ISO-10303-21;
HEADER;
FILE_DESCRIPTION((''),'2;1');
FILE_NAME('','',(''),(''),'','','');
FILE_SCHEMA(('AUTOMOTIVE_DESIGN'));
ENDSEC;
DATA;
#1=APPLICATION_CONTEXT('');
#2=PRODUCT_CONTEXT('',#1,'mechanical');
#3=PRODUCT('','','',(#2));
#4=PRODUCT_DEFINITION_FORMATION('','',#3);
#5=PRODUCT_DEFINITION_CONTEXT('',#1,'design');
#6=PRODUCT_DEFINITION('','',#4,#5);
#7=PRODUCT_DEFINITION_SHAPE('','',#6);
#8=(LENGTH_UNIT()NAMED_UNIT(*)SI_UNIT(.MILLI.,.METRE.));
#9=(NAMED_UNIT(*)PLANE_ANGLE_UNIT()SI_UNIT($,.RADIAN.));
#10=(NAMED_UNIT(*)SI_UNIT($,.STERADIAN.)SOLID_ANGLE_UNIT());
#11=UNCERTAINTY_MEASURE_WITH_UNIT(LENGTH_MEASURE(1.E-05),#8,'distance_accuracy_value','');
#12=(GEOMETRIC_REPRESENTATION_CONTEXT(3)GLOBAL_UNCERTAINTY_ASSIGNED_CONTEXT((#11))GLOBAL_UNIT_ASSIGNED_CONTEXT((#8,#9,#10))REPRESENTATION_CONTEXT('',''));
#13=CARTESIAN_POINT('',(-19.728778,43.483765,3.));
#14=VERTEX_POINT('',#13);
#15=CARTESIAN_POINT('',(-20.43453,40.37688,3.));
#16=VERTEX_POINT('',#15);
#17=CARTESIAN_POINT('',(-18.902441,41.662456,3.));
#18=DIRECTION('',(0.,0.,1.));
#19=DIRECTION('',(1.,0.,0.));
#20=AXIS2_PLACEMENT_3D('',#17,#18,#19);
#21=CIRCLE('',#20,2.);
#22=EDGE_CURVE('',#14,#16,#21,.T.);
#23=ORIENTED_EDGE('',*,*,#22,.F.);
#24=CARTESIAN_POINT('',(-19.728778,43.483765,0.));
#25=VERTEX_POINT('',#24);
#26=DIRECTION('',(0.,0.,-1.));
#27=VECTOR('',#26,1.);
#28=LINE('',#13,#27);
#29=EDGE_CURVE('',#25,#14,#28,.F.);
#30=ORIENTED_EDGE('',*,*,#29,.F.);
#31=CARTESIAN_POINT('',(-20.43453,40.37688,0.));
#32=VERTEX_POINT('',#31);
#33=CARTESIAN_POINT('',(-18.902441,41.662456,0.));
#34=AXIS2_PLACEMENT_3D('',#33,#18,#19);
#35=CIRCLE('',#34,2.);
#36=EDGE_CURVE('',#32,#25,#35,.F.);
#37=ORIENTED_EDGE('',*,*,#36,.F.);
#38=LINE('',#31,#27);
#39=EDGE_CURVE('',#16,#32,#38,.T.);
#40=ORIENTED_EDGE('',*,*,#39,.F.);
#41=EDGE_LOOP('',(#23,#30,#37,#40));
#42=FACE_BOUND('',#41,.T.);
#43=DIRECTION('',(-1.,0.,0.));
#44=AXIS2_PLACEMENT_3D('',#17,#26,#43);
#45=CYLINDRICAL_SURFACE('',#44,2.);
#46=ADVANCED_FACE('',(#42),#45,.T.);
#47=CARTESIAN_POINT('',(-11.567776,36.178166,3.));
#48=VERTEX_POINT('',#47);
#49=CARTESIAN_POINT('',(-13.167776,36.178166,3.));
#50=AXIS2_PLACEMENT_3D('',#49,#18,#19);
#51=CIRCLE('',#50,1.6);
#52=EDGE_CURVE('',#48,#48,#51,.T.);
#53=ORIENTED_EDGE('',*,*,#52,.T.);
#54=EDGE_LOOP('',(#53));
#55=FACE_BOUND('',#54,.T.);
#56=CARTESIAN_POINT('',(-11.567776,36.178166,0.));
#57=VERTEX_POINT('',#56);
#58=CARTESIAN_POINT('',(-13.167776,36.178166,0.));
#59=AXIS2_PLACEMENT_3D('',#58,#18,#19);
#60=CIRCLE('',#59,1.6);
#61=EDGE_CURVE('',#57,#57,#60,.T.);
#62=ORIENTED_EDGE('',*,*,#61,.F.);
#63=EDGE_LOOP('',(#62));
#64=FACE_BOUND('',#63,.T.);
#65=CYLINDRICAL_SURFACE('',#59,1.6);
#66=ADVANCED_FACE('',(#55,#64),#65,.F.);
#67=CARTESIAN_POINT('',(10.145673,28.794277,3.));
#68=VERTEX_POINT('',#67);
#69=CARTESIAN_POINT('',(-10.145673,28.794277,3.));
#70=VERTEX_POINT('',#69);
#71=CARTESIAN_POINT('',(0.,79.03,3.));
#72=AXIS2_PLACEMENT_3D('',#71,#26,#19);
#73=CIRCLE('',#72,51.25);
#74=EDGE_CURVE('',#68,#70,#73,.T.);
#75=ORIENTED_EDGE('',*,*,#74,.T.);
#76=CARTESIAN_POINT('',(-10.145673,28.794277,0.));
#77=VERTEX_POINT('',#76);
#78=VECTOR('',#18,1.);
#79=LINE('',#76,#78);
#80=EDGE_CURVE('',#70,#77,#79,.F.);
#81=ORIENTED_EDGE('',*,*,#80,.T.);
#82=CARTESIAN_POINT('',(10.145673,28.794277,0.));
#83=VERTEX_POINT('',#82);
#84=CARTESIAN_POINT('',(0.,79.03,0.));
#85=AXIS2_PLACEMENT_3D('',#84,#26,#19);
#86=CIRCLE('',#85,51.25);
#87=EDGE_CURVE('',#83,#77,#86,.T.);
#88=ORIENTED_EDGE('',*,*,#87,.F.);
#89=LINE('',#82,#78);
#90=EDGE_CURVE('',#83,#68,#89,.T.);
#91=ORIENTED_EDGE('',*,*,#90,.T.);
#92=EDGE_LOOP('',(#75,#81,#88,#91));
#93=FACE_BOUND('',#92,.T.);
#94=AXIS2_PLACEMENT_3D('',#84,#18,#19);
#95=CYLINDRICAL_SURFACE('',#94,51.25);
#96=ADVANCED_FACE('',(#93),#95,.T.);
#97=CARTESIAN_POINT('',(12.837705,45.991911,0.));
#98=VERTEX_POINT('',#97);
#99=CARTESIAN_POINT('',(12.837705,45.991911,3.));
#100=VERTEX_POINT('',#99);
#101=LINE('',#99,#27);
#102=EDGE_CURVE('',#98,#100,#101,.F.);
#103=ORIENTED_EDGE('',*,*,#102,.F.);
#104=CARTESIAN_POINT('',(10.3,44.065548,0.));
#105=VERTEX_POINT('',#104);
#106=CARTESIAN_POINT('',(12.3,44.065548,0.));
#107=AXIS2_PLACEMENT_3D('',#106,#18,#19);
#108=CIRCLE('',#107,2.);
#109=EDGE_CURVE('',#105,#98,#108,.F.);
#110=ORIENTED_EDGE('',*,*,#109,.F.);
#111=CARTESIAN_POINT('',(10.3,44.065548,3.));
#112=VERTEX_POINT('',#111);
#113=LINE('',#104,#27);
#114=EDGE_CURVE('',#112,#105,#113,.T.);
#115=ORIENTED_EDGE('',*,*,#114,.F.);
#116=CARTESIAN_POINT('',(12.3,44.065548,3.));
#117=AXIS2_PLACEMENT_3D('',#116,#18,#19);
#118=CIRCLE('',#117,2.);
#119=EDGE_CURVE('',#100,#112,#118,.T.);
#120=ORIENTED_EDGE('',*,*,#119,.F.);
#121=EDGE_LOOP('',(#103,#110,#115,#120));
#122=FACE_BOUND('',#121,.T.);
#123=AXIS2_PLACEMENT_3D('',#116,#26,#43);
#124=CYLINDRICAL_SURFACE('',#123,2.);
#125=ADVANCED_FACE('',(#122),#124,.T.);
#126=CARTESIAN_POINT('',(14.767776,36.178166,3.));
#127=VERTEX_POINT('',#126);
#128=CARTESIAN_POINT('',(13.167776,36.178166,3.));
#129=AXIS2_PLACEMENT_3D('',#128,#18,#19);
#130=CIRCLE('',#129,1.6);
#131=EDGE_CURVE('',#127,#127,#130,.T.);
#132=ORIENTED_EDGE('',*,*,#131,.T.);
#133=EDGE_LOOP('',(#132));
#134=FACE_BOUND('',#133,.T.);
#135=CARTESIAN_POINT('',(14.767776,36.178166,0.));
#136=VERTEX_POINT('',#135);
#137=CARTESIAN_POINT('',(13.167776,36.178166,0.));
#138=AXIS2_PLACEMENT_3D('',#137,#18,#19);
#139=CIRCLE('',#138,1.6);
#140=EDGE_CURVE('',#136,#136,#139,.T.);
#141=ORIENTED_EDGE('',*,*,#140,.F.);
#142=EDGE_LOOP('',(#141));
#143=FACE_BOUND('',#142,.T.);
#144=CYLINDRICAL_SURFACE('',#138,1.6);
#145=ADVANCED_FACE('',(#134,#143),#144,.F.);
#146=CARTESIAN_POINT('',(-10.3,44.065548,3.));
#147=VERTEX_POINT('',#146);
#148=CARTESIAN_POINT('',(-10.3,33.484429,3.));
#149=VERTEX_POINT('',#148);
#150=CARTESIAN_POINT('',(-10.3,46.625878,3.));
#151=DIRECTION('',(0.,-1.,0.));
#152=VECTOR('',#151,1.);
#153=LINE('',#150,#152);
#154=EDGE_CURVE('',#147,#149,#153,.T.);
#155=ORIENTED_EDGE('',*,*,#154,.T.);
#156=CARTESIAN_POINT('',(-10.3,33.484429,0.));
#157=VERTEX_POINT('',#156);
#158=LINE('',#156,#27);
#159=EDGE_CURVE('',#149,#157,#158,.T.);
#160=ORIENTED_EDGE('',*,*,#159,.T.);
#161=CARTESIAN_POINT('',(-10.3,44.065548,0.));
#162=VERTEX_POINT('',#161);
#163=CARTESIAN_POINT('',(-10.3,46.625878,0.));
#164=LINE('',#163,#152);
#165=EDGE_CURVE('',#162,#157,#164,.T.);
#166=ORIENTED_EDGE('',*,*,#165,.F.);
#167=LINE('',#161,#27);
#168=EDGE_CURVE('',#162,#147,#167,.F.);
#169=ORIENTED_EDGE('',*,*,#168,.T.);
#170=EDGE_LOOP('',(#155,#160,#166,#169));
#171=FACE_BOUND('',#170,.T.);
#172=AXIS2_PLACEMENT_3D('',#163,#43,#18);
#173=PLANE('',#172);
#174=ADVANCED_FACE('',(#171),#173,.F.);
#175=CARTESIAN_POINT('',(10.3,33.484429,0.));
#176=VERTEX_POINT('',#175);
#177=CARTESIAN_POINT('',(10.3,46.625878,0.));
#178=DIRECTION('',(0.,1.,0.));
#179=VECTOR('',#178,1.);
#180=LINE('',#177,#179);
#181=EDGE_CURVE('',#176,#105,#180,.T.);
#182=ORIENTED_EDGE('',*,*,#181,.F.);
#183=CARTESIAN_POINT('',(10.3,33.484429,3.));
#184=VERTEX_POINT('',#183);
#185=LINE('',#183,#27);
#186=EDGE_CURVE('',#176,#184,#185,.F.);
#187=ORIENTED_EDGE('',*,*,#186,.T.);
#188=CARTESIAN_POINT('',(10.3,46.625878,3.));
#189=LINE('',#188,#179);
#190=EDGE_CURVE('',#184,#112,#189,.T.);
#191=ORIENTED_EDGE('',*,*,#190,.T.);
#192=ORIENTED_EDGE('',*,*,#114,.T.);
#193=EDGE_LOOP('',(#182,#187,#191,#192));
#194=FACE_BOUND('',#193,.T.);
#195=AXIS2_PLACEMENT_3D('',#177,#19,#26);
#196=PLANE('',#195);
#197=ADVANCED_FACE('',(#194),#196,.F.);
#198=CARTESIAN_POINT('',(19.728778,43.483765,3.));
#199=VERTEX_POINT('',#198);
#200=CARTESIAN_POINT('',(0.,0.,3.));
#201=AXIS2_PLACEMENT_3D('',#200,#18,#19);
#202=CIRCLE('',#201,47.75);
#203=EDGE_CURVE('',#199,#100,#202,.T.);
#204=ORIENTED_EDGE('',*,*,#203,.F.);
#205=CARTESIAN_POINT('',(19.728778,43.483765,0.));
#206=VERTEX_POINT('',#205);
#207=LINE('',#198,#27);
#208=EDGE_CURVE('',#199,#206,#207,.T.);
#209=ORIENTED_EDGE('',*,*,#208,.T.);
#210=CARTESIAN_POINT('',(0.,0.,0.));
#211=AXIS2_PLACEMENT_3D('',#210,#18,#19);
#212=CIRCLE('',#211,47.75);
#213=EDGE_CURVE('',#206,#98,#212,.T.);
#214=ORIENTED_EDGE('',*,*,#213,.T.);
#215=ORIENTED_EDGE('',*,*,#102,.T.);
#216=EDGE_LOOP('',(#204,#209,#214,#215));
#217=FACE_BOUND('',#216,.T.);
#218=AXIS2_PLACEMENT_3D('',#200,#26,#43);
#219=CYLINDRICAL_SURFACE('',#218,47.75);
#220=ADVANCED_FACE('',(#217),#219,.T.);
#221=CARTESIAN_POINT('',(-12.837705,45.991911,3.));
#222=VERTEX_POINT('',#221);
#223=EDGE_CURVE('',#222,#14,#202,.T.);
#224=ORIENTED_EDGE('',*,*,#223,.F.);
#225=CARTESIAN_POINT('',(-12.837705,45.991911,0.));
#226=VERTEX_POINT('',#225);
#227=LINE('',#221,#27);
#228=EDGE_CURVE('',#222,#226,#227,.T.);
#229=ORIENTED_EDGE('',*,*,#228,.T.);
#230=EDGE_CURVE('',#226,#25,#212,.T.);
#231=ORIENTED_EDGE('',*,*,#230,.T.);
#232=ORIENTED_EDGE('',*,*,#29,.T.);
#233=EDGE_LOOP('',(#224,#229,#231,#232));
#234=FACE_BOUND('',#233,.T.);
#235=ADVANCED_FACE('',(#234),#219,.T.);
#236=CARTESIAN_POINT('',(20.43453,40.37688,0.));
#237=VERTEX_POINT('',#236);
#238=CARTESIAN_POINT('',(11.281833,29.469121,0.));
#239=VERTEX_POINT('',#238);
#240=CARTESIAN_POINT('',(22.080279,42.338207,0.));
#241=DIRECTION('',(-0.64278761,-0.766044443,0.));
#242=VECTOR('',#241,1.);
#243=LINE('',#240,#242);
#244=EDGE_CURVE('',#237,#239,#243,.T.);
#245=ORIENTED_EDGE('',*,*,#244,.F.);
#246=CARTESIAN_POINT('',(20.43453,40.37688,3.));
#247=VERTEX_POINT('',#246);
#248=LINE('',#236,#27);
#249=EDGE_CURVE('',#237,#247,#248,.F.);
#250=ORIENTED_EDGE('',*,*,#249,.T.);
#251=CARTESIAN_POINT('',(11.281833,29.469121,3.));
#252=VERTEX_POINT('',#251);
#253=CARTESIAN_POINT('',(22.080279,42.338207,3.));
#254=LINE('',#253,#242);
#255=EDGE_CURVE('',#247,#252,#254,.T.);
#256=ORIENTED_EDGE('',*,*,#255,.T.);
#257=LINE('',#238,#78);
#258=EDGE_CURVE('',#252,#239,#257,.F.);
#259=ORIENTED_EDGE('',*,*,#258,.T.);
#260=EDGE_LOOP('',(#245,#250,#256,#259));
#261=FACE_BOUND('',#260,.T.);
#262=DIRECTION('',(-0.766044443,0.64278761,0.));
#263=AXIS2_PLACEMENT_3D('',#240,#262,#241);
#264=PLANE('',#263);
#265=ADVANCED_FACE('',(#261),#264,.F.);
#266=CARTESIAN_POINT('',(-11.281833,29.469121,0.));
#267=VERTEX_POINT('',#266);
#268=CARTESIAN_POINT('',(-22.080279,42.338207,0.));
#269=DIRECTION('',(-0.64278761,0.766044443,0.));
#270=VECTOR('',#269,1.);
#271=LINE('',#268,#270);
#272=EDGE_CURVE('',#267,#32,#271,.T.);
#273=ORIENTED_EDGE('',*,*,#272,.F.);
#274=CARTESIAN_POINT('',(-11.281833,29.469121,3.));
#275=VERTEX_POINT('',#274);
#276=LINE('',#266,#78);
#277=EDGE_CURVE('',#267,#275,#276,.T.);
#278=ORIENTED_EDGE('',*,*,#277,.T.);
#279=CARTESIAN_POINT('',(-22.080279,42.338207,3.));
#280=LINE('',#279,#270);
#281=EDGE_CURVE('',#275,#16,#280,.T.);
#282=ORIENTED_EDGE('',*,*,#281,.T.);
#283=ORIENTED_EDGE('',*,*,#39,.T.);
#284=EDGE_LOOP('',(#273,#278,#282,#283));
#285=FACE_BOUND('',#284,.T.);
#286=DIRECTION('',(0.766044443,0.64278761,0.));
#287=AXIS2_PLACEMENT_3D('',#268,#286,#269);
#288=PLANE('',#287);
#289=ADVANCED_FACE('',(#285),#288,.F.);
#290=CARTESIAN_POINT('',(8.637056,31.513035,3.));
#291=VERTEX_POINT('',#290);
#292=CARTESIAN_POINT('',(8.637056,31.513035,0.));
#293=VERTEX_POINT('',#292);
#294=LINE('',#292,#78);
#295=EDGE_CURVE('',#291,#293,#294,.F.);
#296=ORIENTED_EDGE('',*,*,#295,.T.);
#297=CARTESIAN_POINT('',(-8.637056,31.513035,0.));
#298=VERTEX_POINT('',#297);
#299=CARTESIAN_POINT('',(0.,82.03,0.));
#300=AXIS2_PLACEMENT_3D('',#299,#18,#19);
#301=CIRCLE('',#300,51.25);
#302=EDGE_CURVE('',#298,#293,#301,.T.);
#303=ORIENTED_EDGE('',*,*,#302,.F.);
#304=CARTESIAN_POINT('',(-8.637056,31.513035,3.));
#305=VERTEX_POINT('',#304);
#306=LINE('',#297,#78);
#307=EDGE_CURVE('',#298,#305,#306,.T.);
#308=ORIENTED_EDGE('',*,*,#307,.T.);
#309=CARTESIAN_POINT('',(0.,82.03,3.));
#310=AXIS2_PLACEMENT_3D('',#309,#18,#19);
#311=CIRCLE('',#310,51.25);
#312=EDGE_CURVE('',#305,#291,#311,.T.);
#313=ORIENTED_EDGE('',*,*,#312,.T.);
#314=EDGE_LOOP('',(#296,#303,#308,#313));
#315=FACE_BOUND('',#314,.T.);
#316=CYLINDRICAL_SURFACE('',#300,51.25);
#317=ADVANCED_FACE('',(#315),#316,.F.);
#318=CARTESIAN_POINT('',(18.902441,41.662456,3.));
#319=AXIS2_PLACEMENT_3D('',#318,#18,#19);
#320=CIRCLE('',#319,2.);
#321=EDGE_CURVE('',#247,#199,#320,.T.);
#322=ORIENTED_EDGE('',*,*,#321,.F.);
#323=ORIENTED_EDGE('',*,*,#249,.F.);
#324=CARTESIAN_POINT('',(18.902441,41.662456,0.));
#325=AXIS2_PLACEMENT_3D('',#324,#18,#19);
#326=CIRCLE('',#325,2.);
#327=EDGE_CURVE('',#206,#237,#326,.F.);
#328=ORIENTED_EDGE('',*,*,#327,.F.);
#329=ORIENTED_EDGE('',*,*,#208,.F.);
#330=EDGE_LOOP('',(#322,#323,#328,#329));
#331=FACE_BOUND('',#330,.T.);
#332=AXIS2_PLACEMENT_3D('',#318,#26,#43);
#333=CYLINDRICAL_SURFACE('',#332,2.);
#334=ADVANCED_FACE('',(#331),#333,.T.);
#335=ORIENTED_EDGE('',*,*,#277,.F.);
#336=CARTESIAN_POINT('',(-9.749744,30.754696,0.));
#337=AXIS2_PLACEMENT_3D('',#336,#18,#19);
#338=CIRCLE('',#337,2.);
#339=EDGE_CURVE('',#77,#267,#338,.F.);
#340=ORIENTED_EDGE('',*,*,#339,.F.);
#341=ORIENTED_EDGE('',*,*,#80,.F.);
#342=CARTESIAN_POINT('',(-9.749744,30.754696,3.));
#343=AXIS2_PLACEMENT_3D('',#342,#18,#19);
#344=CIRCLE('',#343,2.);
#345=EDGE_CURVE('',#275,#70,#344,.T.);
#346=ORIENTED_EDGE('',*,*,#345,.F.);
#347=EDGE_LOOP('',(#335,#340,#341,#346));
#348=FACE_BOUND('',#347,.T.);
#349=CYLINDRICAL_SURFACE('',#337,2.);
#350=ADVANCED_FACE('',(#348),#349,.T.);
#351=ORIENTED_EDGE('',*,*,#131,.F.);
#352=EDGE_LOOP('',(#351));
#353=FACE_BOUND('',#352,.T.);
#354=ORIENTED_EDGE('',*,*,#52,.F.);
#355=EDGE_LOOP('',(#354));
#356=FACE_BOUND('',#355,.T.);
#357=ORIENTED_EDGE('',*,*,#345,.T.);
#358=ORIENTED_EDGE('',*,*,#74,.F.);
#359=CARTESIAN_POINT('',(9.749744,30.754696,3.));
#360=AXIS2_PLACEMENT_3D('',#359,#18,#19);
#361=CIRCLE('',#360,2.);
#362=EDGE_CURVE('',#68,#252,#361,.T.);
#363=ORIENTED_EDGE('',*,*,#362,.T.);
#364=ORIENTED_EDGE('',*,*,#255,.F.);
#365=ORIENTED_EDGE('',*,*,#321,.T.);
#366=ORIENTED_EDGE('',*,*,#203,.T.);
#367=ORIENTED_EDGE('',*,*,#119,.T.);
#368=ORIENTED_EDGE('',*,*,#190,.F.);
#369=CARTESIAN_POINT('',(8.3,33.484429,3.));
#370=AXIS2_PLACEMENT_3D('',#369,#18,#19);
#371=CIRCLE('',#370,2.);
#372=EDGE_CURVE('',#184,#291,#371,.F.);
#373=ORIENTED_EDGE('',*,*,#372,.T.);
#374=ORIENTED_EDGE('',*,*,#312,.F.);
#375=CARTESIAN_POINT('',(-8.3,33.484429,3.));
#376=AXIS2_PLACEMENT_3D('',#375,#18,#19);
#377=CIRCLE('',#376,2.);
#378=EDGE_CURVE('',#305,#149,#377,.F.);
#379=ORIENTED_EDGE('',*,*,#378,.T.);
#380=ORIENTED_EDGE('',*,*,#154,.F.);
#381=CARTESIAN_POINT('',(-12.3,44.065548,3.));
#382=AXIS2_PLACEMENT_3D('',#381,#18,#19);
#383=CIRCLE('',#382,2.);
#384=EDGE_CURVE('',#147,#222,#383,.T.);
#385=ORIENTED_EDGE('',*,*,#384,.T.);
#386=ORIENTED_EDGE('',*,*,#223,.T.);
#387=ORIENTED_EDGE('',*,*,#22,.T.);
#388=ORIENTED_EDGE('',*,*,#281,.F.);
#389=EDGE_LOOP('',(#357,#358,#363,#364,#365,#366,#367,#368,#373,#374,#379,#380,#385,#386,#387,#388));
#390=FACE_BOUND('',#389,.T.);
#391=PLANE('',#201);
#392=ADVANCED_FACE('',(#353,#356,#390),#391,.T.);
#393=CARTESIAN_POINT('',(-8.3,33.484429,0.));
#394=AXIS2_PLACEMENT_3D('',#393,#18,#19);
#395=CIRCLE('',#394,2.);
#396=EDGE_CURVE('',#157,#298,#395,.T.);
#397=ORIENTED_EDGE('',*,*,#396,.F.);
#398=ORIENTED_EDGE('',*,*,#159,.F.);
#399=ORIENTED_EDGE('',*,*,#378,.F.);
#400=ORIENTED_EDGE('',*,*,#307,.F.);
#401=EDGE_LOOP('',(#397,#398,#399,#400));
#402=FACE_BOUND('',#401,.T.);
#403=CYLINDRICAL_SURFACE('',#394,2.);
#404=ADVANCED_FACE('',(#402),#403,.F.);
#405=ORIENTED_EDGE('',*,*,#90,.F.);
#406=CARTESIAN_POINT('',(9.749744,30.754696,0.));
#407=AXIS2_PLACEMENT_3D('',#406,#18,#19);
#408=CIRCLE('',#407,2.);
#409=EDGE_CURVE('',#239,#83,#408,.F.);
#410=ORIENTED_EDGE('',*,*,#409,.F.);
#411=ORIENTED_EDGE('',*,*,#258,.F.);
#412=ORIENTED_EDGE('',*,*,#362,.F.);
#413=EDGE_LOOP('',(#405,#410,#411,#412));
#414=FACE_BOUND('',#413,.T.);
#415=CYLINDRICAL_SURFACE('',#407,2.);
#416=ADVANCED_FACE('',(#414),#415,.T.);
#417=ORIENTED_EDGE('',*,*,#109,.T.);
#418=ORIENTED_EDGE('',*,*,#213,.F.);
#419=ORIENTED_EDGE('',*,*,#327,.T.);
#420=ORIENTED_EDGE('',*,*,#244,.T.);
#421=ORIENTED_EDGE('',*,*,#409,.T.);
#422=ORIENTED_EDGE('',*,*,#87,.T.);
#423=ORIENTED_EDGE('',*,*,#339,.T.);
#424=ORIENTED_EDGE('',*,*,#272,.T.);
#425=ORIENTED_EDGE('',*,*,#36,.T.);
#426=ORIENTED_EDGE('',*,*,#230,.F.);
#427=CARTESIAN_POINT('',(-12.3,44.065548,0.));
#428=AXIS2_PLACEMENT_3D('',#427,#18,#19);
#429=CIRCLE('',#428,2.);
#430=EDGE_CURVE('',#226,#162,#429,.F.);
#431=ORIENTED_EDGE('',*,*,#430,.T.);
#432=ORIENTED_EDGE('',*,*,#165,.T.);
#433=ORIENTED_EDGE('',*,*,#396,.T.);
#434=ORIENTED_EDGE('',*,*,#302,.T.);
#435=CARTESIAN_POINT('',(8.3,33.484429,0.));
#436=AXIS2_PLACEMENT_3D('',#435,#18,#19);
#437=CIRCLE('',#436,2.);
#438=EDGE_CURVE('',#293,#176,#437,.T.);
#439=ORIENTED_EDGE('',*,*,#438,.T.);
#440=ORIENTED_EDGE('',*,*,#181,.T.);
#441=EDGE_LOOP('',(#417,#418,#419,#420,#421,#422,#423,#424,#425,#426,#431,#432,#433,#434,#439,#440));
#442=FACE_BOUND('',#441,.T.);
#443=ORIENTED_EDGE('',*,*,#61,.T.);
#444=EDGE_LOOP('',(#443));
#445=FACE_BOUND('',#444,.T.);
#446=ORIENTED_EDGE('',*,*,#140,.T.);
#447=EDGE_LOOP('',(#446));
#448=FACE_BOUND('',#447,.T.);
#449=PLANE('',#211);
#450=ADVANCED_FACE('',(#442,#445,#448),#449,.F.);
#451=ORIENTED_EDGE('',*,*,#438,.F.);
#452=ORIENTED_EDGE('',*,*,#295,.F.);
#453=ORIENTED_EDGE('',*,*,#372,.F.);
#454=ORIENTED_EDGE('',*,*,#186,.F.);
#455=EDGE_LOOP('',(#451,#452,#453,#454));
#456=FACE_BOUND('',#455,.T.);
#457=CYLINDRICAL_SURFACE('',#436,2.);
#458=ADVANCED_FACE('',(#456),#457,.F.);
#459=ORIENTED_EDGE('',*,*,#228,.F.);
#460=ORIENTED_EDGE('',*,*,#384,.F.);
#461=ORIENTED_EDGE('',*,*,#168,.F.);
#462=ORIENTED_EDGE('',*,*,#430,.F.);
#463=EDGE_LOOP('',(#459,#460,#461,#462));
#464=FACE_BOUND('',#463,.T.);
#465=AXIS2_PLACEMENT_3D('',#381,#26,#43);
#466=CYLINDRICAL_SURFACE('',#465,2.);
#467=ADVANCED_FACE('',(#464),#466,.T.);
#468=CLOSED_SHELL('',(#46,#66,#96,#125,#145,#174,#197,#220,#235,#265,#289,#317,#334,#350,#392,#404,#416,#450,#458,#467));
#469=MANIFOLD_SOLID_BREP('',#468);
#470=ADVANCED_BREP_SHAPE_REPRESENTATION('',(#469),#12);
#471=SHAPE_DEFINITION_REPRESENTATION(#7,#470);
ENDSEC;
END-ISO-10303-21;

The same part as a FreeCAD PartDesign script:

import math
import FreeCAD as App
import Part
import Sketcher
Q = App.Units.Quantity


def edges_at(feature, points):
    """Names of the edges that pass closest to the given points."""
    edges = feature.Shape.Edges
    near = lambda p: min(range(len(edges)), key=lambda i: edges[i].distToShape(Part.Vertex(*p))[0])
    return sorted({f"Edge{near(p) + 1}" for p in points})

doc = App.newDocument("Part")
body = doc.addObject("PartDesign::Body", "Body")

# Sketch on XY plane
sketch1 = body.newObject("Sketcher::SketchObject", "Sketch")
sketch1.AttachmentSupport = (doc.getObject("XY_Plane"), [""])
sketch1.MapMode = "FlatFace"
sketch1.addGeometry(Part.Circle(App.Vector(0, 0, 0), App.Vector(0, 0, 1), 47.75), False)
sketch1.addConstraint([
    Sketcher.Constraint("Coincident", 0, 3, -1, 1),
    Sketcher.Constraint("Diameter", 0, 95.5),
])
pad1 = body.newObject("PartDesign::Pad", "Pad")
pad1.Profile = sketch1
pad1.Length = 3

# Sketch on XY plane
sketch2 = body.newObject("Sketcher::SketchObject", "Sketch001")
sketch2.AttachmentSupport = (doc.getObject("XY_Plane"), [""])
sketch2.MapMode = "FlatFace"
sketch2.AttachmentOffset = App.Placement(App.Vector(0, 0, 3), App.Rotation())
sketch2.addGeometry([
    Part.Circle(App.Vector(-13.167776, 36.178166, 0), App.Vector(0, 0, 1), 1.6),  # 0
    Part.Circle(App.Vector(13.167776, 36.178166, 0), App.Vector(0, 0, 1), 1.6),  # 1
    Part.LineSegment(App.Vector(-10.3, 46.625878, 0), App.Vector(-10.3, 31.825692, 0)),  # 2
    Part.ArcOfCircle(Part.Circle(App.Vector(0, 82.03, 0), App.Vector(0, 0, 1), 51.25), math.radians(-101.594016), math.radians(-78.405984)),  # 3
    Part.LineSegment(App.Vector(10.3, 31.825692, 0), App.Vector(10.3, 46.625878, 0)),  # 4
    Part.ArcOfCircle(Part.Circle(App.Vector(0, 0, 0), App.Vector(0, 0, 1), 47.75), math.radians(77.543003), math.radians(102.456997)),  # 5
    Part.LineSegment(App.Vector(-10.836871, 28.938836, 0), App.Vector(-22.080279, 42.338207, 0)),  # 6
    Part.ArcOfCircle(Part.Circle(App.Vector(0, 0, 0), App.Vector(0, 0, 1), 47.75), math.radians(117.543003), math.radians(422.456997)),  # 7
    Part.LineSegment(App.Vector(22.080279, 42.338207, 0), App.Vector(10.836871, 28.938836, 0)),  # 8
    Part.ArcOfCircle(Part.Circle(App.Vector(0, 79.03, 0), App.Vector(0, 0, 1), 51.25), math.radians(-102.207407), math.radians(-77.792593)),  # 9
], False)
sketch2.addConstraint([
    Sketcher.Constraint("Coincident", 2, 2, 3, 1),
    Sketcher.Constraint("Coincident", 3, 2, 4, 1),
    Sketcher.Constraint("Coincident", 4, 2, 5, 1),
    Sketcher.Constraint("Coincident", 5, 2, 2, 1),
    Sketcher.Constraint("Coincident", 6, 2, 7, 1),
    Sketcher.Constraint("Coincident", 7, 2, 8, 1),
    Sketcher.Constraint("Coincident", 8, 2, 9, 2),
    Sketcher.Constraint("Coincident", 9, 1, 6, 1),
    Sketcher.Constraint("Vertical", 2),
    Sketcher.Constraint("Vertical", 4),
    Sketcher.Constraint("Coincident", 5, 3, -1, 1),
    Sketcher.Constraint("Coincident", 7, 3, -1, 1),
    Sketcher.Constraint("Equal", 0, 1),
    Sketcher.Constraint("Equal", 5, 7),
    Sketcher.Constraint("Equal", 3, 9),
    Sketcher.Constraint("Symmetric", 0, 3, 1, 3, -2),
    Sketcher.Constraint("Symmetric", 2, 2, 3, 2, -2),
    Sketcher.Constraint("Symmetric", 8, 2, 9, 1, -2),
    Sketcher.Constraint("Horizontal", 6, 2, 7, 2),
    Sketcher.Constraint("Diameter", 0, 3.2),
    Sketcher.Constraint("Angle", 6, Q("130 deg")),
    Sketcher.Constraint("Radius", 3, 51.25),
    Sketcher.Constraint("Radius", 5, 47.75),
    Sketcher.Constraint("DistanceY", 9, 3, 3, 3, 3.0),
    Sketcher.Constraint("DistanceX", 2, 2, -1, 1, 10.3),
    Sketcher.Constraint("DistanceY", -1, 1, 3, 3, 82.03),
    Sketcher.Constraint("DistanceX", 6, 2, -1, 1, 22.080279),
    Sketcher.Constraint("DistanceX", 0, 3, 1, 3, 26.335551),
    Sketcher.Constraint("DistanceY", 0, 3, 6, 2, 6.160041),
])
pocket1 = body.newObject("PartDesign::Pocket", "Pocket")
pocket1.Profile = sketch2
pocket1.Type = "ThroughAll"
doc.recompute()

fillet = body.newObject("PartDesign::Fillet", "Fillet")
fillet.Base = (pocket1, edges_at(pocket1, [
    (22.08, 42.338, 1.5),
    (-22.08, 42.338, 1.5),
    (-10.837, 28.939, 1.5),
    (10.837, 28.939, 1.5),
    (-10.3, 46.626, 1.5),
    (10.3, 46.626, 1.5),
    (10.3, 31.826, 1.5),
    (-10.3, 31.826, 1.5),
]))
fillet.Radius = 2

doc.recompute()
